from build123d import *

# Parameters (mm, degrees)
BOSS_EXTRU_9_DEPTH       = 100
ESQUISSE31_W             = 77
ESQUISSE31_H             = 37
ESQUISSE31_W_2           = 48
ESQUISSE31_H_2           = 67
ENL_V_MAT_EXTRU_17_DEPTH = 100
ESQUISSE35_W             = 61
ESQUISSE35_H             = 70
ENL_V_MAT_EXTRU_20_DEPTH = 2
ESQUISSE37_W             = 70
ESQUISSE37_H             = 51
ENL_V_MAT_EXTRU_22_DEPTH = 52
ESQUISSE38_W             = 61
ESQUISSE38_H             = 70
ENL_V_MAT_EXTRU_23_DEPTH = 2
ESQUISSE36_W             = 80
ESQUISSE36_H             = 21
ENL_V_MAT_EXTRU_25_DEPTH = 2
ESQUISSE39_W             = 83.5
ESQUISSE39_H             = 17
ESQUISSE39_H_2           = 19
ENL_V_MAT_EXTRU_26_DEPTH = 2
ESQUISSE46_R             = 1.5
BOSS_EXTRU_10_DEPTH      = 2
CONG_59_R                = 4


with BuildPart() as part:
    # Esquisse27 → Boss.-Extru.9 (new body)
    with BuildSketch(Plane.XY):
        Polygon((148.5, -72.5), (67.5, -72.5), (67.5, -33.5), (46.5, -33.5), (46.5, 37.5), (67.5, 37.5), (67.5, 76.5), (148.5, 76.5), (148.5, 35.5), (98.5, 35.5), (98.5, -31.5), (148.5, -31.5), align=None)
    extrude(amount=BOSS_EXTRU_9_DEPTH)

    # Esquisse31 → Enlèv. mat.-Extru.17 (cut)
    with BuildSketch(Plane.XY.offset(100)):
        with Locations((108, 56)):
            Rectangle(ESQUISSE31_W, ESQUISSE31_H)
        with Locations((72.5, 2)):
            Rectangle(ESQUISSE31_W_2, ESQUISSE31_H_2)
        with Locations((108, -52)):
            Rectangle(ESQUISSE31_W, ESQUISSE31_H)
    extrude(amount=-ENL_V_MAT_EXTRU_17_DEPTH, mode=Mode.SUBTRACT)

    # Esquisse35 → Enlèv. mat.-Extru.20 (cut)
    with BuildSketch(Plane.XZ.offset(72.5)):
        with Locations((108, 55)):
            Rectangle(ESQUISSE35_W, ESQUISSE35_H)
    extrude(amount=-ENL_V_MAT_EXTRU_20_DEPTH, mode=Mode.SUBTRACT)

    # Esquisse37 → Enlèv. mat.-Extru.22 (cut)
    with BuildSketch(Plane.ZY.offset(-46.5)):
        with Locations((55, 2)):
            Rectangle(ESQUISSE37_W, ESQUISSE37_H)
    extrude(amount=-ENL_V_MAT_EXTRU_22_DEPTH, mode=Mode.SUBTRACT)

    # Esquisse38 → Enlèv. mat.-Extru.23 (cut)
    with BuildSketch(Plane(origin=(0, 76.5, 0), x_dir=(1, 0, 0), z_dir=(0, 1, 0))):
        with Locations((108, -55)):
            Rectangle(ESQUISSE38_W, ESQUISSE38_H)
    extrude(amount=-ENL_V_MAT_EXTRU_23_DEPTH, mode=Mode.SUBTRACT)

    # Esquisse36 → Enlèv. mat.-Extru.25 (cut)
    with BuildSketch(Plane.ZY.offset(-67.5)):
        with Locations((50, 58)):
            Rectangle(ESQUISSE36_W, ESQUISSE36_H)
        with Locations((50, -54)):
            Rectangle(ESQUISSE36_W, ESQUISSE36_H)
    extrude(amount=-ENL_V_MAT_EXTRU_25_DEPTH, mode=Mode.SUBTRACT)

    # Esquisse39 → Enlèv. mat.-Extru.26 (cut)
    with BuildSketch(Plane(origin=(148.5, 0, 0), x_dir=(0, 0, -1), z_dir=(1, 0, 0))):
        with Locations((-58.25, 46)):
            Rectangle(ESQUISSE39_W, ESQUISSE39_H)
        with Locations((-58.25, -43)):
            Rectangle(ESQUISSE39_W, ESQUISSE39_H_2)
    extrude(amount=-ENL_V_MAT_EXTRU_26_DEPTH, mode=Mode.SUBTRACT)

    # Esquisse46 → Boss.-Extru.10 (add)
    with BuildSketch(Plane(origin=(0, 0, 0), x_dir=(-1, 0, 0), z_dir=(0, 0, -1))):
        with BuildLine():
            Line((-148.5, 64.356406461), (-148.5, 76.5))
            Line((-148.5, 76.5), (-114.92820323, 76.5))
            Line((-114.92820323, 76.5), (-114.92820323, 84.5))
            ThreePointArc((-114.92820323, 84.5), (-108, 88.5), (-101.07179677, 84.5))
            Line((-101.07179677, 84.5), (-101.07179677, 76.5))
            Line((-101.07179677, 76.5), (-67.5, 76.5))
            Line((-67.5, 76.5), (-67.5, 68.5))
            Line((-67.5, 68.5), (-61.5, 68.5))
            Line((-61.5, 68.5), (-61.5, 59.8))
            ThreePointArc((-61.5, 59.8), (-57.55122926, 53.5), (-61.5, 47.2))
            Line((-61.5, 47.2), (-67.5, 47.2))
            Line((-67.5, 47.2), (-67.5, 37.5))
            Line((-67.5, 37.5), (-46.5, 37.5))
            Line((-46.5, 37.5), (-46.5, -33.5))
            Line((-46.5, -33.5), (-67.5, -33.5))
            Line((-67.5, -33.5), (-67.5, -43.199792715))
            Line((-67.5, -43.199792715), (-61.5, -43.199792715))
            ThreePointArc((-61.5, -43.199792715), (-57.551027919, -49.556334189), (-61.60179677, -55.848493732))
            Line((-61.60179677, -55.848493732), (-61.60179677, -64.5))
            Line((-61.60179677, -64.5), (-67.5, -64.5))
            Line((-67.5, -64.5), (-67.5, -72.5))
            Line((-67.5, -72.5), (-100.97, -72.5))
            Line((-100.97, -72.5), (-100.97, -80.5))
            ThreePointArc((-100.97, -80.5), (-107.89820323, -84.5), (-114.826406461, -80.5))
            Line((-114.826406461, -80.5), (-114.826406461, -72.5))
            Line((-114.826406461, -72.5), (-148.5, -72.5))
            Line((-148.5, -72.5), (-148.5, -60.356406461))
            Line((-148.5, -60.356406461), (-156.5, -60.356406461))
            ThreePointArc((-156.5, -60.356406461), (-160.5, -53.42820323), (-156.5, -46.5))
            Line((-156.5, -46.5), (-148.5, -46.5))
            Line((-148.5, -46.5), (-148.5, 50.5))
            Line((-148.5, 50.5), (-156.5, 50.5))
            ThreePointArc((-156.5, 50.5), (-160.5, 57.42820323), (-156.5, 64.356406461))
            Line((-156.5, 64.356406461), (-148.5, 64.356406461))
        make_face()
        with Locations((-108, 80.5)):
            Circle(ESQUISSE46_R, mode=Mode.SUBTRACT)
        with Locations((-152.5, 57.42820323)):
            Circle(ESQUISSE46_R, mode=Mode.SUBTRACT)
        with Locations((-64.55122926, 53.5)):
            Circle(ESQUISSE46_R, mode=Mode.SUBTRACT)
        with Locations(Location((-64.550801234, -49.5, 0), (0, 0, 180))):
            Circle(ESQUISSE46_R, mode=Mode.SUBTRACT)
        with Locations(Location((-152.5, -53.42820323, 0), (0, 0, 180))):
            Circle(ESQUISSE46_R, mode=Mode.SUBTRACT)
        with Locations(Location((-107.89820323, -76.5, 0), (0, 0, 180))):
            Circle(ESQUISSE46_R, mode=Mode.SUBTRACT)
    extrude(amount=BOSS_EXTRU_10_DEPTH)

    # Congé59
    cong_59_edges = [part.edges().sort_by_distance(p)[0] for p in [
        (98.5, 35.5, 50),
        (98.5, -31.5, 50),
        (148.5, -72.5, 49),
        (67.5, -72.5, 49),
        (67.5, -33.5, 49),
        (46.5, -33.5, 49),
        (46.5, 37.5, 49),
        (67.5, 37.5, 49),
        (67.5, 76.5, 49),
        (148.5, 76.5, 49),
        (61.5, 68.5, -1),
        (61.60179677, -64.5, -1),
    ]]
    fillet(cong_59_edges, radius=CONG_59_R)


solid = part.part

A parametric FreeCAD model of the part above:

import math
import FreeCAD as App
import Part
import Sketcher


def edges_at(feature, points):
    """Names of the edges that pass closest to the given points."""
    edges = feature.Shape.Edges
    near = lambda p: min(range(len(edges)), key=lambda i: edges[i].distToShape(Part.Vertex(*p))[0])
    return sorted({f"Edge{near(p) + 1}" for p in points})

doc = App.newDocument("Part")
params = doc.addObject("Spreadsheet::Sheet", "Params")
for row, (alias, value) in enumerate([
    ("sketch1_width", "81 mm"),
    ("sketch1_width2", "50 mm"),
    ("sketch1_width3", "21 mm"),
    ("sketch1_height", "41 mm"),
    ("sketch1_height2", "67 mm"),
    ("pad1_length", "100 mm"),
    ("sketch2_width", "77 mm"),
    ("sketch2_width2", "48 mm"),
    ("sketch2_height", "37 mm"),
    ("sketch2_height2", "67 mm"),
    ("pocket1_length", "100 mm"),
    ("sketch3_width", "61 mm"),
    ("sketch3_height", "70 mm"),
    ("pocket2_length", "2 mm"),
    ("sketch4_width", "51 mm"),
    ("sketch4_height", "70 mm"),
    ("pocket3_length", "52 mm"),
    ("sketch5_width", "61 mm"),
    ("sketch5_height", "70 mm"),
    ("pocket4_length", "2 mm"),
    ("sketch6_width", "21 mm"),
    ("sketch6_height", "80 mm"),
    ("pocket5_length", "2 mm"),
    ("sketch7_width", "17 mm"),
    ("sketch7_width2", "19 mm"),
    ("sketch7_height", "83.5 mm"),
    ("pocket6_length", "2 mm"),
    ("sketch8_diameter", "3 mm"),
    ("sketch8_radius", "8 mm"),
    ("sketch8_radius2", "7 mm"),
    ("sketch8_width", "8 mm"),
    ("sketch8_width2", "6 mm"),
    ("pad2_length", "2 mm"),
    ("fillet_radius", "4 mm"),
], start=1):
    params.set(f"A{row}", alias)
    params.set(f"B{row}", "=" + value)
    params.setAlias(f"B{row}", alias)

body = doc.addObject("PartDesign::Body", "Body")

# Sketch on XY plane
sketch1 = body.newObject("Sketcher::SketchObject", "Sketch")
sketch1.AttachmentSupport = (doc.getObject("XY_Plane"), [""])
sketch1.MapMode = "FlatFace"
sketch1.addGeometry(Part.LineSegment(App.Vector(68, -72, 0), App.Vector(148, -72, 0)), False)
sketch1.addGeometry(Part.LineSegment(App.Vector(148, -72, 0), App.Vector(148, -32, 0)), False)
sketch1.addGeometry(Part.LineSegment(App.Vector(148, -32, 0), App.Vector(98, -32, 0)), False)
sketch1.addGeometry(Part.LineSegment(App.Vector(98, -32, 0), App.Vector(98, 36, 0)), False)
sketch1.addGeometry(Part.LineSegment(App.Vector(98, 36, 0), App.Vector(148, 36, 0)), False)
sketch1.addGeometry(Part.LineSegment(App.Vector(148, 36, 0), App.Vector(148, 76, 0)), False)
sketch1.addGeometry(Part.LineSegment(App.Vector(148, 76, 0), App.Vector(68, 76, 0)), False)
sketch1.addGeometry(Part.LineSegment(App.Vector(68, 76, 0), App.Vector(68, 38, 0)), False)
sketch1.addGeometry(Part.LineSegment(App.Vector(68, 38, 0), App.Vector(46, 38, 0)), False)
sketch1.addGeometry(Part.LineSegment(App.Vector(46, 38, 0), App.Vector(46, -34, 0)), False)
sketch1.addGeometry(Part.LineSegment(App.Vector(46, -34, 0), App.Vector(68, -34, 0)), False)
sketch1.addGeometry(Part.LineSegment(App.Vector(68, -34, 0), App.Vector(68, -72, 0)), False)
sketch1.addConstraint(Sketcher.Constraint("Coincident", 0, 2, 1, 1))
sketch1.addConstraint(Sketcher.Constraint("Coincident", 1, 2, 2, 1))
sketch1.addConstraint(Sketcher.Constraint("Coincident", 2, 2, 3, 1))
sketch1.addConstraint(Sketcher.Constraint("Coincident", 3, 2, 4, 1))
sketch1.addConstraint(Sketcher.Constraint("Coincident", 4, 2, 5, 1))
sketch1.addConstraint(Sketcher.Constraint("Coincident", 5, 2, 6, 1))
sketch1.addConstraint(Sketcher.Constraint("Coincident", 6, 2, 7, 1))
sketch1.addConstraint(Sketcher.Constraint("Coincident", 7, 2, 8, 1))
sketch1.addConstraint(Sketcher.Constraint("Coincident", 8, 2, 9, 1))
sketch1.addConstraint(Sketcher.Constraint("Coincident", 9, 2, 10, 1))
sketch1.addConstraint(Sketcher.Constraint("Coincident", 10, 2, 11, 1))
sketch1.addConstraint(Sketcher.Constraint("Coincident", 11, 2, 0, 1))
sketch1.addConstraint(Sketcher.Constraint("Horizontal", 0))
sketch1.addConstraint(Sketcher.Constraint("Vertical", 1))
sketch1.addConstraint(Sketcher.Constraint("Horizontal", 2))
sketch1.addConstraint(Sketcher.Constraint("Vertical", 3))
sketch1.addConstraint(Sketcher.Constraint("Horizontal", 4))
sketch1.addConstraint(Sketcher.Constraint("Vertical", 5))
sketch1.addConstraint(Sketcher.Constraint("Horizontal", 6))
sketch1.addConstraint(Sketcher.Constraint("Vertical", 7))
sketch1.addConstraint(Sketcher.Constraint("Horizontal", 8))
sketch1.addConstraint(Sketcher.Constraint("Vertical", 9))
sketch1.addConstraint(Sketcher.Constraint("Horizontal", 10))
sketch1.addConstraint(Sketcher.Constraint("Vertical", 11))
sketch1.addConstraint(Sketcher.Constraint("Vertical", 1, 2, 4, 2))
sketch1.addConstraint(Sketcher.Constraint("Vertical", 7, 2, 10, 2))
sketch1.addConstraint(Sketcher.Constraint("Equal", 1, 5))
sketch1.addConstraint(Sketcher.Constraint("Equal", 7, 11))
sketch1.addConstraint(Sketcher.Constraint("DistanceX", 0, 1, 0, 2, 81.0))
sketch1.addConstraint(Sketcher.Constraint("DistanceX", 2, 2, 2, 1, 50.0))
sketch1.addConstraint(Sketcher.Constraint("DistanceX", 8, 2, 8, 1, 21.0))
sketch1.addConstraint(Sketcher.Constraint("DistanceY", 1, 1, 1, 2, 41.0))
sketch1.addConstraint(Sketcher.Constraint("DistanceY", 3, 1, 3, 2, 67.0))
sketch1.addConstraint(Sketcher.Constraint("DistanceY", 7, 2, 7, 1, 39.0))
sketch1.addConstraint(Sketcher.Constraint("DistanceX", -1, 1, 0, 2, 148.5))
sketch1.addConstraint(Sketcher.Constraint("DistanceY", 0, 2, -1, 1, 72.5))
sketch1.setExpression("Constraints[28]", "Params.sketch1_width")
sketch1.setExpression("Constraints[29]", "Params.sketch1_width2")
sketch1.setExpression("Constraints[30]", "Params.sketch1_width3")
sketch1.setExpression("Constraints[31]", "Params.sketch1_height")
sketch1.setExpression("Constraints[32]", "Params.sketch1_height2")
pad1 = body.newObject("PartDesign::Pad", "Pad")
pad1.Profile = sketch1
pad1.setExpression("Length", "Params.pad1_length")

# Sketch on XY plane
sketch2 = body.newObject("Sketcher::SketchObject", "Sketch001")
sketch2.AttachmentSupport = (doc.getObject("XY_Plane"), [""])
sketch2.MapMode = "FlatFace"
sketch2.AttachmentOffset = App.Placement(App.Vector(0, 0, 100), App.Rotation())
sketch2.addGeometry(Part.LineSegment(App.Vector(70, 74, 0), App.Vector(70, 38, 0)), False)
sketch2.addGeometry(Part.LineSegment(App.Vector(70, 38, 0), App.Vector(146, 38, 0)), False)
sketch2.addGeometry(Part.LineSegment(App.Vector(146, 38, 0), App.Vector(146, 74, 0)), False)
sketch2.addGeometry(Part.LineSegment(App.Vector(146, 74, 0), App.Vector(70, 74, 0)), False)
sketch2.addGeometry(Part.LineSegment(App.Vector(48, 36, 0), App.Vector(48, -32, 0)), False)
sketch2.addGeometry(Part.LineSegment(App.Vector(48, -32, 0), App.Vector(96, -32, 0)), False)
sketch2.addGeometry(Part.LineSegment(App.Vector(96, -32, 0), App.Vector(96, 36, 0)), False)
sketch2.addGeometry(Part.LineSegment(App.Vector(96, 36, 0), App.Vector(48, 36, 0)), False)
sketch2.addGeometry(Part.LineSegment(App.Vector(70, -34, 0), App.Vector(70, -70, 0)), False)
sketch2.addGeometry(Part.LineSegment(App.Vector(70, -70, 0), App.Vector(146, -70, 0)), False)
sketch2.addGeometry(Part.LineSegment(App.Vector(146, -70, 0), App.Vector(146, -34, 0)), False)
sketch2.addGeometry(Part.LineSegment(App.Vector(146, -34, 0), App.Vector(70, -34, 0)), False)
sketch2.addConstraint(Sketcher.Constraint("Coincident", 0, 2, 1, 1))
sketch2.addConstraint(Sketcher.Constraint("Coincident", 1, 2, 2, 1))
sketch2.addConstraint(Sketcher.Constraint("Coincident", 2, 2, 3, 1))
sketch2.addConstraint(Sketcher.Constraint("Coincident", 3, 2, 0, 1))
sketch2.addConstraint(Sketcher.Constraint("Coincident", 4, 2, 5, 1))
sketch2.addConstraint(Sketcher.Constraint("Coincident", 5, 2, 6, 1))
sketch2.addConstraint(Sketcher.Constraint("Coincident", 6, 2, 7, 1))
sketch2.addConstraint(Sketcher.Constraint("Coincident", 7, 2, 4, 1))
sketch2.addConstraint(Sketcher.Constraint("Coincident", 8, 2, 9, 1))
sketch2.addConstraint(Sketcher.Constraint("Coincident", 9, 2, 10, 1))
sketch2.addConstraint(Sketcher.Constraint("Coincident", 10, 2, 11, 1))
sketch2.addConstraint(Sketcher.Constraint("Coincident", 11, 2, 8, 1))
sketch2.addConstraint(Sketcher.Constraint("Vertical", 0))
sketch2.addConstraint(Sketcher.Constraint("Horizontal", 1))
sketch2.addConstraint(Sketcher.Constraint("Vertical", 2))
sketch2.addConstraint(Sketcher.Constraint("Horizontal", 3))
sketch2.addConstraint(Sketcher.Constraint("Vertical", 4))
sketch2.addConstraint(Sketcher.Constraint("Horizontal", 5))
sketch2.addConstraint(Sketcher.Constraint("Vertical", 6))
sketch2.addConstraint(Sketcher.Constraint("Horizontal", 7))
sketch2.addConstraint(Sketcher.Constraint("Vertical", 8))
sketch2.addConstraint(Sketcher.Constraint("Horizontal", 9))
sketch2.addConstraint(Sketcher.Constraint("Vertical", 10))
sketch2.addConstraint(Sketcher.Constraint("Horizontal", 11))
sketch2.addConstraint(Sketcher.Constraint("Vertical", 3, 2, 8, 2))
sketch2.addConstraint(Sketcher.Constraint("Vertical", 2, 2, 9, 2))
sketch2.addConstraint(Sketcher.Constraint("Equal", 2, 8))
sketch2.addConstraint(Sketcher.Constraint("DistanceX", 1, 1, 1, 2, 77.0))
sketch2.addConstraint(Sketcher.Constraint("DistanceX", 5, 1, 5, 2, 48.0))
sketch2.addConstraint(Sketcher.Constraint("DistanceY", 0, 2, 0, 1, 37.0))
sketch2.addConstraint(Sketcher.Constraint("DistanceY", 4, 2, 4, 1, 67.0))
sketch2.addConstraint(Sketcher.Constraint("DistanceX", 4, 2, 0, 2, 21.0))
sketch2.addConstraint(Sketcher.Constraint("DistanceY", 4, 2, 0, 2, 69.0))
sketch2.addConstraint(Sketcher.Constraint("DistanceY", 8, 2, 4, 2, 39.0))
sketch2.addConstraint(Sketcher.Constraint("DistanceX", -1, 1, 0, 2, 69.5))
sketch2.addConstraint(Sketcher.Constraint("DistanceY", -1, 1, 0, 2, 37.5))
sketch2.setExpression("Constraints[27]", "Params.sketch2_width")
sketch2.setExpression("Constraints[28]", "Params.sketch2_width2")
sketch2.setExpression("Constraints[29]", "Params.sketch2_height")
sketch2.setExpression("Constraints[30]", "Params.sketch2_height2")
pocket1 = body.newObject("PartDesign::Pocket", "Pocket")
pocket1.Profile = sketch2
pocket1.setExpression("Length", "Params.pocket1_length")

# Sketch on XZ plane
sketch3 = body.newObject("Sketcher::SketchObject", "Sketch002")
sketch3.AttachmentSupport = (doc.getObject("XZ_Plane"), [""])
sketch3.MapMode = "FlatFace"
sketch3.AttachmentOffset = App.Placement(App.Vector(0, 0, 72.5), App.Rotation())
sketch3.addGeometry(Part.LineSegment(App.Vector(78, 90, 0), App.Vector(78, 20, 0)), False)
sketch3.addGeometry(Part.LineSegment(App.Vector(78, 20, 0), App.Vector(138, 20, 0)), False)
sketch3.addGeometry(Part.LineSegment(App.Vector(138, 20, 0), App.Vector(138, 90, 0)), False)
sketch3.addGeometry(Part.LineSegment(App.Vector(138, 90, 0), App.Vector(78, 90, 0)), False)
sketch3.addConstraint(Sketcher.Constraint("Coincident", 0, 2, 1, 1))
sketch3.addConstraint(Sketcher.Constraint("Coincident", 1, 2, 2, 1))
sketch3.addConstraint(Sketcher.Constraint("Coincident", 2, 2, 3, 1))
sketch3.addConstraint(Sketcher.Constraint("Coincident", 3, 2, 0, 1))
sketch3.addConstraint(Sketcher.Constraint("Vertical", 0))
sketch3.addConstraint(Sketcher.Constraint("Horizontal", 1))
sketch3.addConstraint(Sketcher.Constraint("Vertical", 2))
sketch3.addConstraint(Sketcher.Constraint("Horizontal", 3))
sketch3.addConstraint(Sketcher.Constraint("DistanceX", 1, 1, 1, 2, 61.0))
sketch3.addConstraint(Sketcher.Constraint("DistanceY", 0, 2, 0, 1, 70.0))
sketch3.addConstraint(Sketcher.Constraint("DistanceY", -1, 1, 0, 2, 20.0))
sketch3.addConstraint(Sketcher.Constraint("DistanceX", -1, 1, 0, 2, 77.5))
sketch3.setExpression("Constraints[8]", "Params.sketch3_width")
sketch3.setExpression("Constraints[9]", "Params.sketch3_height")
pocket2 = body.newObject("PartDesign::Pocket", "Pocket001")
pocket2.Profile = sketch3
pocket2.setExpression("Length", "Params.pocket2_length")

# Sketch on YZ plane
sketch4 = body.newObject("Sketcher::SketchObject", "Sketch003")
sketch4.AttachmentSupport = (doc.getObject("YZ_Plane"), [""])
sketch4.MapMode = "FlatFace"
sketch4.AttachmentOffset = App.Placement(App.Vector(0, 0, 46.5), App.Rotation())
sketch4.addGeometry(Part.LineSegment(App.Vector(28, 20, 0), App.Vector(-24, 20, 0)), False)
sketch4.addGeometry(Part.LineSegment(App.Vector(-24, 20, 0), App.Vector(-24, 90, 0)), False)
sketch4.addGeometry(Part.LineSegment(App.Vector(-24, 90, 0), App.Vector(28, 90, 0)), False)
sketch4.addGeometry(Part.LineSegment(App.Vector(28, 90, 0), App.Vector(28, 20, 0)), False)
sketch4.addConstraint(Sketcher.Constraint("Coincident", 0, 2, 1, 1))
sketch4.addConstraint(Sketcher.Constraint("Coincident", 1, 2, 2, 1))
sketch4.addConstraint(Sketcher.Constraint("Coincident", 2, 2, 3, 1))
sketch4.addConstraint(Sketcher.Constraint("Coincident", 3, 2, 0, 1))
sketch4.addConstraint(Sketcher.Constraint("Horizontal", 0))
sketch4.addConstraint(Sketcher.Constraint("Vertical", 1))
sketch4.addConstraint(Sketcher.Constraint("Horizontal", 2))
sketch4.addConstraint(Sketcher.Constraint("Vertical", 3))
sketch4.addConstraint(Sketcher.Constraint("DistanceX", 0, 2, 0, 1, 51.0))
sketch4.addConstraint(Sketcher.Constraint("DistanceY", 1, 1, 1, 2, 70.0))
sketch4.addConstraint(Sketcher.Constraint("DistanceY", -1, 1, 0, 2, 20.0))
sketch4.addConstraint(Sketcher.Constraint("DistanceX", 0, 2, -1, 1, 23.5))
sketch4.setExpression("Constraints[8]", "Params.sketch4_width")
sketch4.setExpression("Constraints[9]", "Params.sketch4_height")
pocket3 = body.newObject("PartDesign::Pocket", "Pocket002")
pocket3.Profile = sketch4
pocket3.setExpression("Length", "Params.pocket3_length")
pocket3.Reversed = True

# Sketch on XZ plane
sketch5 = body.newObject("Sketcher::SketchObject", "Sketch004")
sketch5.AttachmentSupport = (doc.getObject("XZ_Plane"), [""])
sketch5.MapMode = "FlatFace"
sketch5.AttachmentOffset = App.Placement(App.Vector(0, 0, -76.5), App.Rotation())
sketch5.addGeometry(Part.LineSegment(App.Vector(78, 20, 0), App.Vector(78, 90, 0)), False)
sketch5.addGeometry(Part.LineSegment(App.Vector(78, 90, 0), App.Vector(138, 90, 0)), False)
sketch5.addGeometry(Part.LineSegment(App.Vector(138, 90, 0), App.Vector(138, 20, 0)), False)
sketch5.addGeometry(Part.LineSegment(App.Vector(138, 20, 0), App.Vector(78, 20, 0)), False)
sketch5.addConstraint(Sketcher.Constraint("Coincident", 0, 2, 1, 1))
sketch5.addConstraint(Sketcher.Constraint("Coincident", 1, 2, 2, 1))
sketch5.addConstraint(Sketcher.Constraint("Coincident", 2, 2, 3, 1))
sketch5.addConstraint(Sketcher.Constraint("Coincident", 3, 2, 0, 1))
sketch5.addConstraint(Sketcher.Constraint("Vertical", 0))
sketch5.addConstraint(Sketcher.Constraint("Horizontal", 1))
sketch5.addConstraint(Sketcher.Constraint("Vertical", 2))
sketch5.addConstraint(Sketcher.Constraint("Horizontal", 3))
sketch5.addConstraint(Sketcher.Constraint("DistanceX", 1, 1, 1, 2, 61.0))
sketch5.addConstraint(Sketcher.Constraint("DistanceY", 0, 1, 0, 2, 70.0))
sketch5.addConstraint(Sketcher.Constraint("DistanceY", -1, 1, 0, 2, 90.0))
sketch5.addConstraint(Sketcher.Constraint("DistanceX", -1, 1, 0, 2, 77.5))
sketch5.setExpression("Constraints[8]", "Params.sketch5_width")
sketch5.setExpression("Constraints[9]", "Params.sketch5_height")
pocket4 = body.newObject("PartDesign::Pocket", "Pocket003")
pocket4.Profile = sketch5
pocket4.setExpression("Length", "Params.pocket4_length")
pocket4.Reversed = True

# Sketch on YZ plane
sketch6 = body.newObject("Sketcher::SketchObject", "Sketch005")
sketch6.AttachmentSupport = (doc.getObject("YZ_Plane"), [""])
sketch6.MapMode = "FlatFace"
sketch6.AttachmentOffset = App.Placement(App.Vector(0, 0, 67.5), App.Rotation())
sketch6.addGeometry(Part.LineSegment(App.Vector(68, 10, 0), App.Vector(48, 10, 0)), False)
sketch6.addGeometry(Part.LineSegment(App.Vector(48, 10, 0), App.Vector(48, 90, 0)), False)
sketch6.addGeometry(Part.LineSegment(App.Vector(48, 90, 0), App.Vector(68, 90, 0)), False)
sketch6.addGeometry(Part.LineSegment(App.Vector(68, 90, 0), App.Vector(68, 10, 0)), False)
sketch6.addGeometry(Part.LineSegment(App.Vector(-44, 10, 0), App.Vector(-64, 10, 0)), False)
sketch6.addGeometry(Part.LineSegment(App.Vector(-64, 10, 0), App.Vector(-64, 90, 0)), False)
sketch6.addGeometry(Part.LineSegment(App.Vector(-64, 90, 0), App.Vector(-44, 90, 0)), False)
sketch6.addGeometry(Part.LineSegment(App.Vector(-44, 90, 0), App.Vector(-44, 10, 0)), False)
sketch6.addConstraint(Sketcher.Constraint("Coincident", 0, 2, 1, 1))
sketch6.addConstraint(Sketcher.Constraint("Coincident", 1, 2, 2, 1))
sketch6.addConstraint(Sketcher.Constraint("Coincident", 2, 2, 3, 1))
sketch6.addConstraint(Sketcher.Constraint("Coincident", 3, 2, 0, 1))
sketch6.addConstraint(Sketcher.Constraint("Coincident", 4, 2, 5, 1))
sketch6.addConstraint(Sketcher.Constraint("Coincident", 5, 2, 6, 1))
sketch6.addConstraint(Sketcher.Constraint("Coincident", 6, 2, 7, 1))
sketch6.addConstraint(Sketcher.Constraint("Coincident", 7, 2, 4, 1))
sketch6.addConstraint(Sketcher.Constraint("Horizontal", 0))
sketch6.addConstraint(Sketcher.Constraint("Vertical", 1))
sketch6.addConstraint(Sketcher.Constraint("Horizontal", 2))
sketch6.addConstraint(Sketcher.Constraint("Vertical", 3))
sketch6.addConstraint(Sketcher.Constraint("Horizontal", 4))
sketch6.addConstraint(Sketcher.Constraint("Vertical", 5))
sketch6.addConstraint(Sketcher.Constraint("Horizontal", 6))
sketch6.addConstraint(Sketcher.Constraint("Vertical", 7))
sketch6.addConstraint(Sketcher.Constraint("Horizontal", 3, 2, 4, 2))
sketch6.addConstraint(Sketcher.Constraint("Horizontal", 2, 2, 5, 2))
sketch6.addConstraint(Sketcher.Constraint("Equal", 2, 4))
sketch6.addConstraint(Sketcher.Constraint("DistanceX", 0, 2, 0, 1, 21.0))
sketch6.addConstraint(Sketcher.Constraint("DistanceY", 1, 1, 1, 2, 80.0))
sketch6.addConstraint(Sketcher.Constraint("DistanceY", -1, 1, 0, 2, 10.0))
sketch6.addConstraint(Sketcher.Constraint("DistanceX", 4, 2, 0, 2, 112.0))
sketch6.addConstraint(Sketcher.Constraint("DistanceX", -1, 1, 0, 2, 47.5))
sketch6.setExpression("Constraints[19]", "Params.sketch6_width")
sketch6.setExpression("Constraints[20]", "Params.sketch6_height")
pocket5 = body.newObject("PartDesign::Pocket", "Pocket004")
pocket5.Profile = sketch6
pocket5.setExpression("Length", "Params.pocket5_length")
pocket5.Reversed = True

# Sketch on YZ plane
sketch7 = body.newObject("Sketcher::SketchObject", "Sketch006")
sketch7.AttachmentSupport = (doc.getObject("YZ_Plane"), [""])
sketch7.MapMode = "FlatFace"
sketch7.AttachmentOffset = App.Placement(App.Vector(0, 0, 148.5), App.Rotation())
sketch7.addGeometry(Part.LineSegment(App.Vector(54, 100, 0), App.Vector(38, 100, 0)), False)
sketch7.addGeometry(Part.LineSegment(App.Vector(38, 100, 0), App.Vector(38, 16, 0)), False)
sketch7.addGeometry(Part.LineSegment(App.Vector(38, 16, 0), App.Vector(54, 16, 0)), False)
sketch7.addGeometry(Part.LineSegment(App.Vector(54, 16, 0), App.Vector(54, 100, 0)), False)
sketch7.addGeometry(Part.LineSegment(App.Vector(-34, 100, 0), App.Vector(-52, 100, 0)), False)
sketch7.addGeometry(Part.LineSegment(App.Vector(-52, 100, 0), App.Vector(-52, 16, 0)), False)
sketch7.addGeometry(Part.LineSegment(App.Vector(-52, 16, 0), App.Vector(-34, 16, 0)), False)
sketch7.addGeometry(Part.LineSegment(App.Vector(-34, 16, 0), App.Vector(-34, 100, 0)), False)
sketch7.addConstraint(Sketcher.Constraint("Coincident", 0, 2, 1, 1))
sketch7.addConstraint(Sketcher.Constraint("Coincident", 1, 2, 2, 1))
sketch7.addConstraint(Sketcher.Constraint("Coincident", 2, 2, 3, 1))
sketch7.addConstraint(Sketcher.Constraint("Coincident", 3, 2, 0, 1))
sketch7.addConstraint(Sketcher.Constraint("Coincident", 4, 2, 5, 1))
sketch7.addConstraint(Sketcher.Constraint("Coincident", 5, 2, 6, 1))
sketch7.addConstraint(Sketcher.Constraint("Coincident", 6, 2, 7, 1))
sketch7.addConstraint(Sketcher.Constraint("Coincident", 7, 2, 4, 1))
sketch7.addConstraint(Sketcher.Constraint("Horizontal", 0))
sketch7.addConstraint(Sketcher.Constraint("Vertical", 1))
sketch7.addConstraint(Sketcher.Constraint("Horizontal", 2))
sketch7.addConstraint(Sketcher.Constraint("Vertical", 3))
sketch7.addConstraint(Sketcher.Constraint("Horizontal", 4))
sketch7.addConstraint(Sketcher.Constraint("Vertical", 5))
sketch7.addConstraint(Sketcher.Constraint("Horizontal", 6))
sketch7.addConstraint(Sketcher.Constraint("Vertical", 7))
sketch7.addConstraint(Sketcher.Constraint("Horizontal", 3, 2, 4, 2))
sketch7.addConstraint(Sketcher.Constraint("Horizontal", 2, 2, 5, 2))
sketch7.addConstraint(Sketcher.Constraint("DistanceX", 0, 2, 0, 1, 17.0))
sketch7.addConstraint(Sketcher.Constraint("DistanceX", 4, 2, 4, 1, 19.0))
sketch7.addConstraint(Sketcher.Constraint("DistanceY", 1, 2, 1, 1, 83.5))
sketch7.addConstraint(Sketcher.Constraint("DistanceY", -1, 1, 0, 2, 100.0))
sketch7.addConstraint(Sketcher.Constraint("DistanceX", 4, 2, 0, 2, 90.0))
sketch7.addConstraint(Sketcher.Constraint("DistanceX", -1, 1, 0, 2, 37.5))
sketch7.setExpression("Constraints[18]", "Params.sketch7_width")
sketch7.setExpression("Constraints[19]", "Params.sketch7_width2")
sketch7.setExpression("Constraints[20]", "Params.sketch7_height")
pocket6 = body.newObject("PartDesign::Pocket", "Pocket005")
pocket6.Profile = sketch7
pocket6.setExpression("Length", "Params.pocket6_length")

# Sketch on XY plane
sketch8 = body.newObject("Sketcher::SketchObject", "Sketch007")
sketch8.AttachmentSupport = (doc.getObject("XY_Plane"), [""])
sketch8.MapMode = "FlatFace"
sketch8.addGeometry(Part.LineSegment(App.Vector(148.5, 76.5, 0), App.Vector(148.5, 64.4, 0)), False)
sketch8.addGeometry(Part.LineSegment(App.Vector(148.5, 64.4, 0), App.Vector(156.5, 64.4, 0)), False)
sketch8.addGeometry(Part.ArcOfCircle(Part.Circle(App.Vector(152.5, 57.4, 0), App.Vector(0, 0, 1), 8), math.radians(-60), math.radians(60)), False)
sketch8.addGeometry(Part.LineSegment(App.Vector(156.5, 50.5, 0), App.Vector(148.5, 50.5, 0)), False)
sketch8.addGeometry(Part.LineSegment(App.Vector(148.5, 50.5, 0), App.Vector(148.5, -46.5, 0)), False)
sketch8.addGeometry(Part.LineSegment(App.Vector(148.5, -46.5, 0), App.Vector(156.5, -46.5, 0)), False)
sketch8.addGeometry(Part.ArcOfCircle(Part.Circle(App.Vector(152.5, -53.4, 0), App.Vector(0, 0, 1), 8), math.radians(-60), math.radians(60)), False)
sketch8.addGeometry(Part.LineSegment(App.Vector(156.5, -60.4, 0), App.Vector(148.5, -60.4, 0)), False)
sketch8.addGeometry(Part.LineSegment(App.Vector(148.5, -60.4, 0), App.Vector(148.5, -72.5, 0)), False)
sketch8.addGeometry(Part.LineSegment(App.Vector(148.5, -72.5, 0), App.Vector(114.8, -72.5, 0)), False)
sketch8.addGeometry(Part.LineSegment(App.Vector(114.8, -72.5, 0), App.Vector(114.8, -80.5, 0)), False)
sketch8.addGeometry(Part.ArcOfCircle(Part.Circle(App.Vector(107.9, -76.5, 0), App.Vector(0, 0, 1), 8), math.radians(-150), math.radians(-30)), False)
sketch8.addGeometry(Part.LineSegment(App.Vector(101, -80.5, 0), App.Vector(101, -72.5, 0)), False)
sketch8.addGeometry(Part.LineSegment(App.Vector(101, -72.5, 0), App.Vector(67.5, -72.5, 0)), False)
sketch8.addGeometry(Part.LineSegment(App.Vector(67.5, -72.5, 0), App.Vector(67.5, -64.5, 0)), False)
sketch8.addGeometry(Part.LineSegment(App.Vector(67.5, -64.5, 0), App.Vector(61.6, -64.5, 0)), False)
sketch8.addGeometry(Part.LineSegment(App.Vector(61.6, -64.5, 0), App.Vector(61.6, -55.8, 0)), False)
sketch8.addGeometry(Part.ArcOfCircle(Part.Circle(App.Vector(64.6, -49.5, 0), App.Vector(0, 0, 1), 7), math.radians(116), math.radians(245)), False)
sketch8.addGeometry(Part.LineSegment(App.Vector(61.5, -43.2, 0), App.Vector(67.5, -43.2, 0)), False)
sketch8.addGeometry(Part.LineSegment(App.Vector(67.5, -43.2, 0), App.Vector(67.5, -33.5, 0)), False)
sketch8.addGeometry(Part.LineSegment(App.Vector(67.5, -33.5, 0), App.Vector(46.5, -33.5, 0)), False)
sketch8.addGeometry(Part.LineSegment(App.Vector(46.5, -33.5, 0), App.Vector(46.5, 37.5, 0)), False)
sketch8.addGeometry(Part.LineSegment(App.Vector(46.5, 37.5, 0), App.Vector(67.5, 37.5, 0)), False)
sketch8.addGeometry(Part.LineSegment(App.Vector(67.5, 37.5, 0), App.Vector(67.5, 47.2, 0)), False)
sketch8.addGeometry(Part.LineSegment(App.Vector(67.5, 47.2, 0), App.Vector(61.5, 47.2, 0)), False)
sketch8.addGeometry(Part.ArcOfCircle(Part.Circle(App.Vector(64.6, 53.5, 0), App.Vector(0, 0, 1), 7), math.radians(116), math.radians(244)), False)
sketch8.addGeometry(Part.LineSegment(App.Vector(61.5, 59.8, 0), App.Vector(61.5, 68.5, 0)), False)
sketch8.addGeometry(Part.LineSegment(App.Vector(61.5, 68.5, 0), App.Vector(67.5, 68.5, 0)), False)
sketch8.addGeometry(Part.LineSegment(App.Vector(67.5, 68.5, 0), App.Vector(67.5, 76.5, 0)), False)
sketch8.addGeometry(Part.LineSegment(App.Vector(67.5, 76.5, 0), App.Vector(101.1, 76.5, 0)), False)
sketch8.addGeometry(Part.LineSegment(App.Vector(101.1, 76.5, 0), App.Vector(101.1, 84.5, 0)), False)
sketch8.addGeometry(Part.ArcOfCircle(Part.Circle(App.Vector(108, 80.5, 0), App.Vector(0, 0, 1), 8), math.radians(30), math.radians(150)), False)
sketch8.addGeometry(Part.LineSegment(App.Vector(114.9, 84.5, 0), App.Vector(114.9, 76.5, 0)), False)
sketch8.addGeometry(Part.LineSegment(App.Vector(114.9, 76.5, 0), App.Vector(148.5, 76.5, 0)), False)
sketch8.addGeometry(Part.Circle(App.Vector(64.6, -49.5, 0), App.Vector(0, 0, 1), 1.5), False)
sketch8.addGeometry(Part.Circle(App.Vector(107.9, -76.5, 0), App.Vector(0, 0, 1), 1.5), False)
sketch8.addGeometry(Part.Circle(App.Vector(152.5, -53.4, 0), App.Vector(0, 0, 1), 1.5), False)
sketch8.addGeometry(Part.Circle(App.Vector(64.6, 53.5, 0), App.Vector(0, 0, 1), 1.5), False)
sketch8.addGeometry(Part.Circle(App.Vector(108, 80.5, 0), App.Vector(0, 0, 1), 1.5), False)
sketch8.addGeometry(Part.Circle(App.Vector(152.5, 57.4, 0), App.Vector(0, 0, 1), 1.5), False)
sketch8.addConstraint(Sketcher.Constraint("Coincident", 0, 2, 1, 1))
sketch8.addConstraint(Sketcher.Constraint("Coincident", 1, 2, 2, 2))
sketch8.addConstraint(Sketcher.Constraint("Coincident", 2, 1, 3, 1))
sketch8.addConstraint(Sketcher.Constraint("Coincident", 3, 2, 4, 1))
sketch8.addConstraint(Sketcher.Constraint("Coincident", 4, 2, 5, 1))
sketch8.addConstraint(Sketcher.Constraint("Coincident", 5, 2, 6, 2))
sketch8.addConstraint(Sketcher.Constraint("Coincident", 6, 1, 7, 1))
sketch8.addConstraint(Sketcher.Constraint("Coincident", 7, 2, 8, 1))
sketch8.addConstraint(Sketcher.Constraint("Coincident", 8, 2, 9, 1))
sketch8.addConstraint(Sketcher.Constraint("Coincident", 9, 2, 10, 1))
sketch8.addConstraint(Sketcher.Constraint("Coincident", 10, 2, 11, 2))
sketch8.addConstraint(Sketcher.Constraint("Coincident", 11, 1, 12, 1))
sketch8.addConstraint(Sketcher.Constraint("Coincident", 12, 2, 13, 1))
sketch8.addConstraint(Sketcher.Constraint("Coincident", 13, 2, 14, 1))
sketch8.addConstraint(Sketcher.Constraint("Coincident", 14, 2, 15, 1))
sketch8.addConstraint(Sketcher.Constraint("Coincident", 15, 2, 16, 1))
sketch8.addConstraint(Sketcher.Constraint("Coincident", 16, 2, 17, 2))
sketch8.addConstraint(Sketcher.Constraint("Coincident", 17, 1, 18, 1))
sketch8.addConstraint(Sketcher.Constraint("Coincident", 18, 2, 19, 1))
sketch8.addConstraint(Sketcher.Constraint("Coincident", 19, 2, 20, 1))
sketch8.addConstraint(Sketcher.Constraint("Coincident", 20, 2, 21, 1))
sketch8.addConstraint(Sketcher.Constraint("Coincident", 21, 2, 22, 1))
sketch8.addConstraint(Sketcher.Constraint("Coincident", 22, 2, 23, 1))
sketch8.addConstraint(Sketcher.Constraint("Coincident", 23, 2, 24, 1))
sketch8.addConstraint(Sketcher.Constraint("Coincident", 24, 2, 25, 2))
sketch8.addConstraint(Sketcher.Constraint("Coincident", 25, 1, 26, 1))
sketch8.addConstraint(Sketcher.Constraint("Coincident", 26, 2, 27, 1))
sketch8.addConstraint(Sketcher.Constraint("Coincident", 27, 2, 28, 1))
sketch8.addConstraint(Sketcher.Constraint("Coincident", 28, 2, 29, 1))
sketch8.addConstraint(Sketcher.Constraint("Coincident", 29, 2, 30, 1))
sketch8.addConstraint(Sketcher.Constraint("Coincident", 30, 2, 31, 2))
sketch8.addConstraint(Sketcher.Constraint("Coincident", 31, 1, 32, 1))
sketch8.addConstraint(Sketcher.Constraint("Coincident", 32, 2, 33, 1))
sketch8.addConstraint(Sketcher.Constraint("Coincident", 33, 2, 0, 1))
sketch8.addConstraint(Sketcher.Constraint("Vertical", 0))
sketch8.addConstraint(Sketcher.Constraint("Horizontal", 1))
sketch8.addConstraint(Sketcher.Constraint("Horizontal", 3))
sketch8.addConstraint(Sketcher.Constraint("Vertical", 4))
sketch8.addConstraint(Sketcher.Constraint("Horizontal", 5))
sketch8.addConstraint(Sketcher.Constraint("Horizontal", 7))
sketch8.addConstraint(Sketcher.Constraint("Vertical", 8))
sketch8.addConstraint(Sketcher.Constraint("Horizontal", 9))
sketch8.addConstraint(Sketcher.Constraint("Vertical", 10))
sketch8.addConstraint(Sketcher.Constraint("Vertical", 12))
sketch8.addConstraint(Sketcher.Constraint("Horizontal", 13))
sketch8.addConstraint(Sketcher.Constraint("Vertical", 14))
sketch8.addConstraint(Sketcher.Constraint("Horizontal", 15))
sketch8.addConstraint(Sketcher.Constraint("Vertical", 16))
sketch8.addConstraint(Sketcher.Constraint("Horizontal", 18))
sketch8.addConstraint(Sketcher.Constraint("Vertical", 19))
sketch8.addConstraint(Sketcher.Constraint("Horizontal", 20))
sketch8.addConstraint(Sketcher.Constraint("Vertical", 21))
sketch8.addConstraint(Sketcher.Constraint("Horizontal", 22))
sketch8.addConstraint(Sketcher.Constraint("Vertical", 23))
sketch8.addConstraint(Sketcher.Constraint("Horizontal", 24))
sketch8.addConstraint(Sketcher.Constraint("Vertical", 26))
sketch8.addConstraint(Sketcher.Constraint("Horizontal", 27))
sketch8.addConstraint(Sketcher.Constraint("Vertical", 28))
sketch8.addConstraint(Sketcher.Constraint("Horizontal", 29))
sketch8.addConstraint(Sketcher.Constraint("Vertical", 30))
sketch8.addConstraint(Sketcher.Constraint("Vertical", 32))
sketch8.addConstraint(Sketcher.Constraint("Horizontal", 33))
sketch8.addConstraint(Sketcher.Constraint("Coincident", 34, 3, 17, 3))
sketch8.addConstraint(Sketcher.Constraint("Coincident", 35, 3, 11, 3))
sketch8.addConstraint(Sketcher.Constraint("Coincident", 36, 3, 6, 3))
sketch8.addConstraint(Sketcher.Constraint("Coincident", 37, 3, 25, 3))
sketch8.addConstraint(Sketcher.Constraint("Coincident", 38, 3, 31, 3))
sketch8.addConstraint(Sketcher.Constraint("Coincident", 39, 3, 2, 3))
sketch8.addConstraint(Sketcher.Constraint("Equal", 2, 6))
sketch8.addConstraint(Sketcher.Constraint("Equal", 6, 11))
sketch8.addConstraint(Sketcher.Constraint("Equal", 17, 25))
sketch8.addConstraint(Sketcher.Constraint("Equal", 11, 31))
sketch8.addConstraint(Sketcher.Constraint("Equal", 34, 35))
sketch8.addConstraint(Sketcher.Constraint("Equal", 35, 36))
sketch8.addConstraint(Sketcher.Constraint("Equal", 36, 37))
sketch8.addConstraint(Sketcher.Constraint("Equal", 37, 38))
sketch8.addConstraint(Sketcher.Constraint("Equal", 38, 39))
sketch8.addConstraint(Sketcher.Constraint("Horizontal", 10, 2, 11, 1))
sketch8.addConstraint(Sketcher.Constraint("Horizontal", 9, 2, 12, 2))
sketch8.addConstraint(Sketcher.Constraint("Horizontal", 30, 2, 31, 1))
sketch8.addConstraint(Sketcher.Constraint("Horizontal", 29, 2, 32, 2))
sketch8.addConstraint(Sketcher.Constraint("Vertical", 2, 3, 6, 3))
sketch8.addConstraint(Sketcher.Constraint("Vertical", 1, 2, 2, 1))
sketch8.addConstraint(Sketcher.Constraint("Vertical", 0, 2, 3, 2))
sketch8.addConstraint(Sketcher.Constraint("Vertical", 2, 1, 5, 2))
sketch8.addConstraint(Sketcher.Constraint("Vertical", 5, 2, 6, 1))
sketch8.addConstraint(Sketcher.Constraint("Vertical", 4, 2, 7, 2))
sketch8.addConstraint(Sketcher.Constraint("Vertical", 14, 2, 18, 2))
sketch8.addConstraint(Sketcher.Constraint("Vertical", 19, 2, 22, 2))
sketch8.addConstraint(Sketcher.Constraint("Vertical", 17, 1, 24, 2))
sketch8.addConstraint(Sketcher.Constraint("Vertical", 24, 2, 25, 1))
sketch8.addConstraint(Sketcher.Constraint("Vertical", 23, 2, 27, 2))
sketch8.addConstraint(Sketcher.Constraint("Equal", 29, 33))
sketch8.addConstraint(Sketcher.Constraint("Equal", 0, 8))
sketch8.addConstraint(Sketcher.Constraint("Equal", 7, 10))
sketch8.addConstraint(Sketcher.Constraint("Equal", 12, 14))
sketch8.addConstraint(Sketcher.Constraint("Equal", 14, 28))
sketch8.addConstraint(Sketcher.Constraint("Equal", 28, 30))
sketch8.addConstraint(Sketcher.Constraint("Diameter", 34, 3.0))
sketch8.addConstraint(Sketcher.Constraint("Radius", 2, 8.0))
sketch8.addConstraint(Sketcher.Constraint("Radius", 17, 7.0))
sketch8.addConstraint(Sketcher.Constraint("DistanceX", 1, 1, 1, 2, 8.0))
sketch8.addConstraint(Sketcher.Constraint("DistanceX", 18, 1, 18, 2, 6.0))
sketch8.addConstraint(Sketcher.Constraint("DistanceX", 20, 2, 20, 1, 21.0))
sketch8.addConstraint(Sketcher.Constraint("DistanceY", 4, 2, 4, 1, 97.0))
sketch8.addConstraint(Sketcher.Constraint("DistanceY", 21, 1, 21, 2, 71.0))
sketch8.addConstraint(Sketcher.Constraint("DistanceY", 23, 1, 23, 2, 9.7))
sketch8.addConstraint(Sketcher.Constraint("DistanceY", 26, 1, 26, 2, 8.7))
sketch8.addConstraint(Sketcher.Constraint("DistanceX", -1, 1, 31, 3, 108.0))
sketch8.addConstraint(Sketcher.Constraint("DistanceY", 11, 3, 17, 3, 27.0))
sketch8.addConstraint(Sketcher.Constraint("DistanceY", 17, 3, 25, 3, 103.0))
sketch8.addConstraint(Sketcher.Constraint("DistanceY", 25, 3, 31, 3, 27.0))
sketch8.addConstraint(Sketcher.Constraint("DistanceX", 0, 2, 2, 3, 4.0))
sketch8.addConstraint(Sketcher.Constraint("DistanceY", 2, 1, 31, 3, 30.0))
sketch8.addConstraint(Sketcher.Constraint("DistanceY", 8, 2, 4, 2, 26.0))
sketch8.addConstraint(Sketcher.Constraint("DistanceX", 13, 2, 13, 1, 33.47))
sketch8.addConstraint(Sketcher.Constraint("DistanceX", -1, 1, 2, 3, 152.5))
sketch8.addConstraint(Sketcher.Constraint("DistanceY", 11, 3, -1, 1, 76.5))
sketch8.addConstraint(Sketcher.Constraint("DistanceX", -1, 1, 17, 3, 64.550801))
sketch8.addConstraint(Sketcher.Constraint("DistanceY", 16, 2, 17, 1, 12.648701))
sketch8.setExpression("Constraints[98]", "Params.sketch8_diameter")
sketch8.setExpression("Constraints[99]", "Params.sketch8_radius")
sketch8.setExpression("Constraints[100]", "Params.sketch8_radius2")
sketch8.setExpression("Constraints[101]", "Params.sketch8_width")
sketch8.setExpression("Constraints[102]", "Params.sketch8_width2")
pad2 = body.newObject("PartDesign::Pad", "Pad001")
pad2.Profile = sketch8
pad2.setExpression("Length", "Params.pad2_length")
pad2.Reversed = True
doc.recompute()

fillet = body.newObject("PartDesign::Fillet", "Fillet")
fillet.Base = (pad2, edges_at(pad2, [
    (98.5, 35.5, 50),
    (98.5, -31.5, 50),
    (148.5, -72.5, 49),
    (67.5, -72.5, 49),
    (67.5, -33.5, 49),
    (46.5, -33.5, 49),
    (46.5, 37.5, 49),
    (67.5, 37.5, 49),
    (67.5, 76.5, 49),
    (148.5, 76.5, 49),
    (61.5, 68.5, -1),
    (61.602, -64.5, -1),
]))
fillet.setExpression("Radius", "Params.fillet_radius")

doc.recompute()
